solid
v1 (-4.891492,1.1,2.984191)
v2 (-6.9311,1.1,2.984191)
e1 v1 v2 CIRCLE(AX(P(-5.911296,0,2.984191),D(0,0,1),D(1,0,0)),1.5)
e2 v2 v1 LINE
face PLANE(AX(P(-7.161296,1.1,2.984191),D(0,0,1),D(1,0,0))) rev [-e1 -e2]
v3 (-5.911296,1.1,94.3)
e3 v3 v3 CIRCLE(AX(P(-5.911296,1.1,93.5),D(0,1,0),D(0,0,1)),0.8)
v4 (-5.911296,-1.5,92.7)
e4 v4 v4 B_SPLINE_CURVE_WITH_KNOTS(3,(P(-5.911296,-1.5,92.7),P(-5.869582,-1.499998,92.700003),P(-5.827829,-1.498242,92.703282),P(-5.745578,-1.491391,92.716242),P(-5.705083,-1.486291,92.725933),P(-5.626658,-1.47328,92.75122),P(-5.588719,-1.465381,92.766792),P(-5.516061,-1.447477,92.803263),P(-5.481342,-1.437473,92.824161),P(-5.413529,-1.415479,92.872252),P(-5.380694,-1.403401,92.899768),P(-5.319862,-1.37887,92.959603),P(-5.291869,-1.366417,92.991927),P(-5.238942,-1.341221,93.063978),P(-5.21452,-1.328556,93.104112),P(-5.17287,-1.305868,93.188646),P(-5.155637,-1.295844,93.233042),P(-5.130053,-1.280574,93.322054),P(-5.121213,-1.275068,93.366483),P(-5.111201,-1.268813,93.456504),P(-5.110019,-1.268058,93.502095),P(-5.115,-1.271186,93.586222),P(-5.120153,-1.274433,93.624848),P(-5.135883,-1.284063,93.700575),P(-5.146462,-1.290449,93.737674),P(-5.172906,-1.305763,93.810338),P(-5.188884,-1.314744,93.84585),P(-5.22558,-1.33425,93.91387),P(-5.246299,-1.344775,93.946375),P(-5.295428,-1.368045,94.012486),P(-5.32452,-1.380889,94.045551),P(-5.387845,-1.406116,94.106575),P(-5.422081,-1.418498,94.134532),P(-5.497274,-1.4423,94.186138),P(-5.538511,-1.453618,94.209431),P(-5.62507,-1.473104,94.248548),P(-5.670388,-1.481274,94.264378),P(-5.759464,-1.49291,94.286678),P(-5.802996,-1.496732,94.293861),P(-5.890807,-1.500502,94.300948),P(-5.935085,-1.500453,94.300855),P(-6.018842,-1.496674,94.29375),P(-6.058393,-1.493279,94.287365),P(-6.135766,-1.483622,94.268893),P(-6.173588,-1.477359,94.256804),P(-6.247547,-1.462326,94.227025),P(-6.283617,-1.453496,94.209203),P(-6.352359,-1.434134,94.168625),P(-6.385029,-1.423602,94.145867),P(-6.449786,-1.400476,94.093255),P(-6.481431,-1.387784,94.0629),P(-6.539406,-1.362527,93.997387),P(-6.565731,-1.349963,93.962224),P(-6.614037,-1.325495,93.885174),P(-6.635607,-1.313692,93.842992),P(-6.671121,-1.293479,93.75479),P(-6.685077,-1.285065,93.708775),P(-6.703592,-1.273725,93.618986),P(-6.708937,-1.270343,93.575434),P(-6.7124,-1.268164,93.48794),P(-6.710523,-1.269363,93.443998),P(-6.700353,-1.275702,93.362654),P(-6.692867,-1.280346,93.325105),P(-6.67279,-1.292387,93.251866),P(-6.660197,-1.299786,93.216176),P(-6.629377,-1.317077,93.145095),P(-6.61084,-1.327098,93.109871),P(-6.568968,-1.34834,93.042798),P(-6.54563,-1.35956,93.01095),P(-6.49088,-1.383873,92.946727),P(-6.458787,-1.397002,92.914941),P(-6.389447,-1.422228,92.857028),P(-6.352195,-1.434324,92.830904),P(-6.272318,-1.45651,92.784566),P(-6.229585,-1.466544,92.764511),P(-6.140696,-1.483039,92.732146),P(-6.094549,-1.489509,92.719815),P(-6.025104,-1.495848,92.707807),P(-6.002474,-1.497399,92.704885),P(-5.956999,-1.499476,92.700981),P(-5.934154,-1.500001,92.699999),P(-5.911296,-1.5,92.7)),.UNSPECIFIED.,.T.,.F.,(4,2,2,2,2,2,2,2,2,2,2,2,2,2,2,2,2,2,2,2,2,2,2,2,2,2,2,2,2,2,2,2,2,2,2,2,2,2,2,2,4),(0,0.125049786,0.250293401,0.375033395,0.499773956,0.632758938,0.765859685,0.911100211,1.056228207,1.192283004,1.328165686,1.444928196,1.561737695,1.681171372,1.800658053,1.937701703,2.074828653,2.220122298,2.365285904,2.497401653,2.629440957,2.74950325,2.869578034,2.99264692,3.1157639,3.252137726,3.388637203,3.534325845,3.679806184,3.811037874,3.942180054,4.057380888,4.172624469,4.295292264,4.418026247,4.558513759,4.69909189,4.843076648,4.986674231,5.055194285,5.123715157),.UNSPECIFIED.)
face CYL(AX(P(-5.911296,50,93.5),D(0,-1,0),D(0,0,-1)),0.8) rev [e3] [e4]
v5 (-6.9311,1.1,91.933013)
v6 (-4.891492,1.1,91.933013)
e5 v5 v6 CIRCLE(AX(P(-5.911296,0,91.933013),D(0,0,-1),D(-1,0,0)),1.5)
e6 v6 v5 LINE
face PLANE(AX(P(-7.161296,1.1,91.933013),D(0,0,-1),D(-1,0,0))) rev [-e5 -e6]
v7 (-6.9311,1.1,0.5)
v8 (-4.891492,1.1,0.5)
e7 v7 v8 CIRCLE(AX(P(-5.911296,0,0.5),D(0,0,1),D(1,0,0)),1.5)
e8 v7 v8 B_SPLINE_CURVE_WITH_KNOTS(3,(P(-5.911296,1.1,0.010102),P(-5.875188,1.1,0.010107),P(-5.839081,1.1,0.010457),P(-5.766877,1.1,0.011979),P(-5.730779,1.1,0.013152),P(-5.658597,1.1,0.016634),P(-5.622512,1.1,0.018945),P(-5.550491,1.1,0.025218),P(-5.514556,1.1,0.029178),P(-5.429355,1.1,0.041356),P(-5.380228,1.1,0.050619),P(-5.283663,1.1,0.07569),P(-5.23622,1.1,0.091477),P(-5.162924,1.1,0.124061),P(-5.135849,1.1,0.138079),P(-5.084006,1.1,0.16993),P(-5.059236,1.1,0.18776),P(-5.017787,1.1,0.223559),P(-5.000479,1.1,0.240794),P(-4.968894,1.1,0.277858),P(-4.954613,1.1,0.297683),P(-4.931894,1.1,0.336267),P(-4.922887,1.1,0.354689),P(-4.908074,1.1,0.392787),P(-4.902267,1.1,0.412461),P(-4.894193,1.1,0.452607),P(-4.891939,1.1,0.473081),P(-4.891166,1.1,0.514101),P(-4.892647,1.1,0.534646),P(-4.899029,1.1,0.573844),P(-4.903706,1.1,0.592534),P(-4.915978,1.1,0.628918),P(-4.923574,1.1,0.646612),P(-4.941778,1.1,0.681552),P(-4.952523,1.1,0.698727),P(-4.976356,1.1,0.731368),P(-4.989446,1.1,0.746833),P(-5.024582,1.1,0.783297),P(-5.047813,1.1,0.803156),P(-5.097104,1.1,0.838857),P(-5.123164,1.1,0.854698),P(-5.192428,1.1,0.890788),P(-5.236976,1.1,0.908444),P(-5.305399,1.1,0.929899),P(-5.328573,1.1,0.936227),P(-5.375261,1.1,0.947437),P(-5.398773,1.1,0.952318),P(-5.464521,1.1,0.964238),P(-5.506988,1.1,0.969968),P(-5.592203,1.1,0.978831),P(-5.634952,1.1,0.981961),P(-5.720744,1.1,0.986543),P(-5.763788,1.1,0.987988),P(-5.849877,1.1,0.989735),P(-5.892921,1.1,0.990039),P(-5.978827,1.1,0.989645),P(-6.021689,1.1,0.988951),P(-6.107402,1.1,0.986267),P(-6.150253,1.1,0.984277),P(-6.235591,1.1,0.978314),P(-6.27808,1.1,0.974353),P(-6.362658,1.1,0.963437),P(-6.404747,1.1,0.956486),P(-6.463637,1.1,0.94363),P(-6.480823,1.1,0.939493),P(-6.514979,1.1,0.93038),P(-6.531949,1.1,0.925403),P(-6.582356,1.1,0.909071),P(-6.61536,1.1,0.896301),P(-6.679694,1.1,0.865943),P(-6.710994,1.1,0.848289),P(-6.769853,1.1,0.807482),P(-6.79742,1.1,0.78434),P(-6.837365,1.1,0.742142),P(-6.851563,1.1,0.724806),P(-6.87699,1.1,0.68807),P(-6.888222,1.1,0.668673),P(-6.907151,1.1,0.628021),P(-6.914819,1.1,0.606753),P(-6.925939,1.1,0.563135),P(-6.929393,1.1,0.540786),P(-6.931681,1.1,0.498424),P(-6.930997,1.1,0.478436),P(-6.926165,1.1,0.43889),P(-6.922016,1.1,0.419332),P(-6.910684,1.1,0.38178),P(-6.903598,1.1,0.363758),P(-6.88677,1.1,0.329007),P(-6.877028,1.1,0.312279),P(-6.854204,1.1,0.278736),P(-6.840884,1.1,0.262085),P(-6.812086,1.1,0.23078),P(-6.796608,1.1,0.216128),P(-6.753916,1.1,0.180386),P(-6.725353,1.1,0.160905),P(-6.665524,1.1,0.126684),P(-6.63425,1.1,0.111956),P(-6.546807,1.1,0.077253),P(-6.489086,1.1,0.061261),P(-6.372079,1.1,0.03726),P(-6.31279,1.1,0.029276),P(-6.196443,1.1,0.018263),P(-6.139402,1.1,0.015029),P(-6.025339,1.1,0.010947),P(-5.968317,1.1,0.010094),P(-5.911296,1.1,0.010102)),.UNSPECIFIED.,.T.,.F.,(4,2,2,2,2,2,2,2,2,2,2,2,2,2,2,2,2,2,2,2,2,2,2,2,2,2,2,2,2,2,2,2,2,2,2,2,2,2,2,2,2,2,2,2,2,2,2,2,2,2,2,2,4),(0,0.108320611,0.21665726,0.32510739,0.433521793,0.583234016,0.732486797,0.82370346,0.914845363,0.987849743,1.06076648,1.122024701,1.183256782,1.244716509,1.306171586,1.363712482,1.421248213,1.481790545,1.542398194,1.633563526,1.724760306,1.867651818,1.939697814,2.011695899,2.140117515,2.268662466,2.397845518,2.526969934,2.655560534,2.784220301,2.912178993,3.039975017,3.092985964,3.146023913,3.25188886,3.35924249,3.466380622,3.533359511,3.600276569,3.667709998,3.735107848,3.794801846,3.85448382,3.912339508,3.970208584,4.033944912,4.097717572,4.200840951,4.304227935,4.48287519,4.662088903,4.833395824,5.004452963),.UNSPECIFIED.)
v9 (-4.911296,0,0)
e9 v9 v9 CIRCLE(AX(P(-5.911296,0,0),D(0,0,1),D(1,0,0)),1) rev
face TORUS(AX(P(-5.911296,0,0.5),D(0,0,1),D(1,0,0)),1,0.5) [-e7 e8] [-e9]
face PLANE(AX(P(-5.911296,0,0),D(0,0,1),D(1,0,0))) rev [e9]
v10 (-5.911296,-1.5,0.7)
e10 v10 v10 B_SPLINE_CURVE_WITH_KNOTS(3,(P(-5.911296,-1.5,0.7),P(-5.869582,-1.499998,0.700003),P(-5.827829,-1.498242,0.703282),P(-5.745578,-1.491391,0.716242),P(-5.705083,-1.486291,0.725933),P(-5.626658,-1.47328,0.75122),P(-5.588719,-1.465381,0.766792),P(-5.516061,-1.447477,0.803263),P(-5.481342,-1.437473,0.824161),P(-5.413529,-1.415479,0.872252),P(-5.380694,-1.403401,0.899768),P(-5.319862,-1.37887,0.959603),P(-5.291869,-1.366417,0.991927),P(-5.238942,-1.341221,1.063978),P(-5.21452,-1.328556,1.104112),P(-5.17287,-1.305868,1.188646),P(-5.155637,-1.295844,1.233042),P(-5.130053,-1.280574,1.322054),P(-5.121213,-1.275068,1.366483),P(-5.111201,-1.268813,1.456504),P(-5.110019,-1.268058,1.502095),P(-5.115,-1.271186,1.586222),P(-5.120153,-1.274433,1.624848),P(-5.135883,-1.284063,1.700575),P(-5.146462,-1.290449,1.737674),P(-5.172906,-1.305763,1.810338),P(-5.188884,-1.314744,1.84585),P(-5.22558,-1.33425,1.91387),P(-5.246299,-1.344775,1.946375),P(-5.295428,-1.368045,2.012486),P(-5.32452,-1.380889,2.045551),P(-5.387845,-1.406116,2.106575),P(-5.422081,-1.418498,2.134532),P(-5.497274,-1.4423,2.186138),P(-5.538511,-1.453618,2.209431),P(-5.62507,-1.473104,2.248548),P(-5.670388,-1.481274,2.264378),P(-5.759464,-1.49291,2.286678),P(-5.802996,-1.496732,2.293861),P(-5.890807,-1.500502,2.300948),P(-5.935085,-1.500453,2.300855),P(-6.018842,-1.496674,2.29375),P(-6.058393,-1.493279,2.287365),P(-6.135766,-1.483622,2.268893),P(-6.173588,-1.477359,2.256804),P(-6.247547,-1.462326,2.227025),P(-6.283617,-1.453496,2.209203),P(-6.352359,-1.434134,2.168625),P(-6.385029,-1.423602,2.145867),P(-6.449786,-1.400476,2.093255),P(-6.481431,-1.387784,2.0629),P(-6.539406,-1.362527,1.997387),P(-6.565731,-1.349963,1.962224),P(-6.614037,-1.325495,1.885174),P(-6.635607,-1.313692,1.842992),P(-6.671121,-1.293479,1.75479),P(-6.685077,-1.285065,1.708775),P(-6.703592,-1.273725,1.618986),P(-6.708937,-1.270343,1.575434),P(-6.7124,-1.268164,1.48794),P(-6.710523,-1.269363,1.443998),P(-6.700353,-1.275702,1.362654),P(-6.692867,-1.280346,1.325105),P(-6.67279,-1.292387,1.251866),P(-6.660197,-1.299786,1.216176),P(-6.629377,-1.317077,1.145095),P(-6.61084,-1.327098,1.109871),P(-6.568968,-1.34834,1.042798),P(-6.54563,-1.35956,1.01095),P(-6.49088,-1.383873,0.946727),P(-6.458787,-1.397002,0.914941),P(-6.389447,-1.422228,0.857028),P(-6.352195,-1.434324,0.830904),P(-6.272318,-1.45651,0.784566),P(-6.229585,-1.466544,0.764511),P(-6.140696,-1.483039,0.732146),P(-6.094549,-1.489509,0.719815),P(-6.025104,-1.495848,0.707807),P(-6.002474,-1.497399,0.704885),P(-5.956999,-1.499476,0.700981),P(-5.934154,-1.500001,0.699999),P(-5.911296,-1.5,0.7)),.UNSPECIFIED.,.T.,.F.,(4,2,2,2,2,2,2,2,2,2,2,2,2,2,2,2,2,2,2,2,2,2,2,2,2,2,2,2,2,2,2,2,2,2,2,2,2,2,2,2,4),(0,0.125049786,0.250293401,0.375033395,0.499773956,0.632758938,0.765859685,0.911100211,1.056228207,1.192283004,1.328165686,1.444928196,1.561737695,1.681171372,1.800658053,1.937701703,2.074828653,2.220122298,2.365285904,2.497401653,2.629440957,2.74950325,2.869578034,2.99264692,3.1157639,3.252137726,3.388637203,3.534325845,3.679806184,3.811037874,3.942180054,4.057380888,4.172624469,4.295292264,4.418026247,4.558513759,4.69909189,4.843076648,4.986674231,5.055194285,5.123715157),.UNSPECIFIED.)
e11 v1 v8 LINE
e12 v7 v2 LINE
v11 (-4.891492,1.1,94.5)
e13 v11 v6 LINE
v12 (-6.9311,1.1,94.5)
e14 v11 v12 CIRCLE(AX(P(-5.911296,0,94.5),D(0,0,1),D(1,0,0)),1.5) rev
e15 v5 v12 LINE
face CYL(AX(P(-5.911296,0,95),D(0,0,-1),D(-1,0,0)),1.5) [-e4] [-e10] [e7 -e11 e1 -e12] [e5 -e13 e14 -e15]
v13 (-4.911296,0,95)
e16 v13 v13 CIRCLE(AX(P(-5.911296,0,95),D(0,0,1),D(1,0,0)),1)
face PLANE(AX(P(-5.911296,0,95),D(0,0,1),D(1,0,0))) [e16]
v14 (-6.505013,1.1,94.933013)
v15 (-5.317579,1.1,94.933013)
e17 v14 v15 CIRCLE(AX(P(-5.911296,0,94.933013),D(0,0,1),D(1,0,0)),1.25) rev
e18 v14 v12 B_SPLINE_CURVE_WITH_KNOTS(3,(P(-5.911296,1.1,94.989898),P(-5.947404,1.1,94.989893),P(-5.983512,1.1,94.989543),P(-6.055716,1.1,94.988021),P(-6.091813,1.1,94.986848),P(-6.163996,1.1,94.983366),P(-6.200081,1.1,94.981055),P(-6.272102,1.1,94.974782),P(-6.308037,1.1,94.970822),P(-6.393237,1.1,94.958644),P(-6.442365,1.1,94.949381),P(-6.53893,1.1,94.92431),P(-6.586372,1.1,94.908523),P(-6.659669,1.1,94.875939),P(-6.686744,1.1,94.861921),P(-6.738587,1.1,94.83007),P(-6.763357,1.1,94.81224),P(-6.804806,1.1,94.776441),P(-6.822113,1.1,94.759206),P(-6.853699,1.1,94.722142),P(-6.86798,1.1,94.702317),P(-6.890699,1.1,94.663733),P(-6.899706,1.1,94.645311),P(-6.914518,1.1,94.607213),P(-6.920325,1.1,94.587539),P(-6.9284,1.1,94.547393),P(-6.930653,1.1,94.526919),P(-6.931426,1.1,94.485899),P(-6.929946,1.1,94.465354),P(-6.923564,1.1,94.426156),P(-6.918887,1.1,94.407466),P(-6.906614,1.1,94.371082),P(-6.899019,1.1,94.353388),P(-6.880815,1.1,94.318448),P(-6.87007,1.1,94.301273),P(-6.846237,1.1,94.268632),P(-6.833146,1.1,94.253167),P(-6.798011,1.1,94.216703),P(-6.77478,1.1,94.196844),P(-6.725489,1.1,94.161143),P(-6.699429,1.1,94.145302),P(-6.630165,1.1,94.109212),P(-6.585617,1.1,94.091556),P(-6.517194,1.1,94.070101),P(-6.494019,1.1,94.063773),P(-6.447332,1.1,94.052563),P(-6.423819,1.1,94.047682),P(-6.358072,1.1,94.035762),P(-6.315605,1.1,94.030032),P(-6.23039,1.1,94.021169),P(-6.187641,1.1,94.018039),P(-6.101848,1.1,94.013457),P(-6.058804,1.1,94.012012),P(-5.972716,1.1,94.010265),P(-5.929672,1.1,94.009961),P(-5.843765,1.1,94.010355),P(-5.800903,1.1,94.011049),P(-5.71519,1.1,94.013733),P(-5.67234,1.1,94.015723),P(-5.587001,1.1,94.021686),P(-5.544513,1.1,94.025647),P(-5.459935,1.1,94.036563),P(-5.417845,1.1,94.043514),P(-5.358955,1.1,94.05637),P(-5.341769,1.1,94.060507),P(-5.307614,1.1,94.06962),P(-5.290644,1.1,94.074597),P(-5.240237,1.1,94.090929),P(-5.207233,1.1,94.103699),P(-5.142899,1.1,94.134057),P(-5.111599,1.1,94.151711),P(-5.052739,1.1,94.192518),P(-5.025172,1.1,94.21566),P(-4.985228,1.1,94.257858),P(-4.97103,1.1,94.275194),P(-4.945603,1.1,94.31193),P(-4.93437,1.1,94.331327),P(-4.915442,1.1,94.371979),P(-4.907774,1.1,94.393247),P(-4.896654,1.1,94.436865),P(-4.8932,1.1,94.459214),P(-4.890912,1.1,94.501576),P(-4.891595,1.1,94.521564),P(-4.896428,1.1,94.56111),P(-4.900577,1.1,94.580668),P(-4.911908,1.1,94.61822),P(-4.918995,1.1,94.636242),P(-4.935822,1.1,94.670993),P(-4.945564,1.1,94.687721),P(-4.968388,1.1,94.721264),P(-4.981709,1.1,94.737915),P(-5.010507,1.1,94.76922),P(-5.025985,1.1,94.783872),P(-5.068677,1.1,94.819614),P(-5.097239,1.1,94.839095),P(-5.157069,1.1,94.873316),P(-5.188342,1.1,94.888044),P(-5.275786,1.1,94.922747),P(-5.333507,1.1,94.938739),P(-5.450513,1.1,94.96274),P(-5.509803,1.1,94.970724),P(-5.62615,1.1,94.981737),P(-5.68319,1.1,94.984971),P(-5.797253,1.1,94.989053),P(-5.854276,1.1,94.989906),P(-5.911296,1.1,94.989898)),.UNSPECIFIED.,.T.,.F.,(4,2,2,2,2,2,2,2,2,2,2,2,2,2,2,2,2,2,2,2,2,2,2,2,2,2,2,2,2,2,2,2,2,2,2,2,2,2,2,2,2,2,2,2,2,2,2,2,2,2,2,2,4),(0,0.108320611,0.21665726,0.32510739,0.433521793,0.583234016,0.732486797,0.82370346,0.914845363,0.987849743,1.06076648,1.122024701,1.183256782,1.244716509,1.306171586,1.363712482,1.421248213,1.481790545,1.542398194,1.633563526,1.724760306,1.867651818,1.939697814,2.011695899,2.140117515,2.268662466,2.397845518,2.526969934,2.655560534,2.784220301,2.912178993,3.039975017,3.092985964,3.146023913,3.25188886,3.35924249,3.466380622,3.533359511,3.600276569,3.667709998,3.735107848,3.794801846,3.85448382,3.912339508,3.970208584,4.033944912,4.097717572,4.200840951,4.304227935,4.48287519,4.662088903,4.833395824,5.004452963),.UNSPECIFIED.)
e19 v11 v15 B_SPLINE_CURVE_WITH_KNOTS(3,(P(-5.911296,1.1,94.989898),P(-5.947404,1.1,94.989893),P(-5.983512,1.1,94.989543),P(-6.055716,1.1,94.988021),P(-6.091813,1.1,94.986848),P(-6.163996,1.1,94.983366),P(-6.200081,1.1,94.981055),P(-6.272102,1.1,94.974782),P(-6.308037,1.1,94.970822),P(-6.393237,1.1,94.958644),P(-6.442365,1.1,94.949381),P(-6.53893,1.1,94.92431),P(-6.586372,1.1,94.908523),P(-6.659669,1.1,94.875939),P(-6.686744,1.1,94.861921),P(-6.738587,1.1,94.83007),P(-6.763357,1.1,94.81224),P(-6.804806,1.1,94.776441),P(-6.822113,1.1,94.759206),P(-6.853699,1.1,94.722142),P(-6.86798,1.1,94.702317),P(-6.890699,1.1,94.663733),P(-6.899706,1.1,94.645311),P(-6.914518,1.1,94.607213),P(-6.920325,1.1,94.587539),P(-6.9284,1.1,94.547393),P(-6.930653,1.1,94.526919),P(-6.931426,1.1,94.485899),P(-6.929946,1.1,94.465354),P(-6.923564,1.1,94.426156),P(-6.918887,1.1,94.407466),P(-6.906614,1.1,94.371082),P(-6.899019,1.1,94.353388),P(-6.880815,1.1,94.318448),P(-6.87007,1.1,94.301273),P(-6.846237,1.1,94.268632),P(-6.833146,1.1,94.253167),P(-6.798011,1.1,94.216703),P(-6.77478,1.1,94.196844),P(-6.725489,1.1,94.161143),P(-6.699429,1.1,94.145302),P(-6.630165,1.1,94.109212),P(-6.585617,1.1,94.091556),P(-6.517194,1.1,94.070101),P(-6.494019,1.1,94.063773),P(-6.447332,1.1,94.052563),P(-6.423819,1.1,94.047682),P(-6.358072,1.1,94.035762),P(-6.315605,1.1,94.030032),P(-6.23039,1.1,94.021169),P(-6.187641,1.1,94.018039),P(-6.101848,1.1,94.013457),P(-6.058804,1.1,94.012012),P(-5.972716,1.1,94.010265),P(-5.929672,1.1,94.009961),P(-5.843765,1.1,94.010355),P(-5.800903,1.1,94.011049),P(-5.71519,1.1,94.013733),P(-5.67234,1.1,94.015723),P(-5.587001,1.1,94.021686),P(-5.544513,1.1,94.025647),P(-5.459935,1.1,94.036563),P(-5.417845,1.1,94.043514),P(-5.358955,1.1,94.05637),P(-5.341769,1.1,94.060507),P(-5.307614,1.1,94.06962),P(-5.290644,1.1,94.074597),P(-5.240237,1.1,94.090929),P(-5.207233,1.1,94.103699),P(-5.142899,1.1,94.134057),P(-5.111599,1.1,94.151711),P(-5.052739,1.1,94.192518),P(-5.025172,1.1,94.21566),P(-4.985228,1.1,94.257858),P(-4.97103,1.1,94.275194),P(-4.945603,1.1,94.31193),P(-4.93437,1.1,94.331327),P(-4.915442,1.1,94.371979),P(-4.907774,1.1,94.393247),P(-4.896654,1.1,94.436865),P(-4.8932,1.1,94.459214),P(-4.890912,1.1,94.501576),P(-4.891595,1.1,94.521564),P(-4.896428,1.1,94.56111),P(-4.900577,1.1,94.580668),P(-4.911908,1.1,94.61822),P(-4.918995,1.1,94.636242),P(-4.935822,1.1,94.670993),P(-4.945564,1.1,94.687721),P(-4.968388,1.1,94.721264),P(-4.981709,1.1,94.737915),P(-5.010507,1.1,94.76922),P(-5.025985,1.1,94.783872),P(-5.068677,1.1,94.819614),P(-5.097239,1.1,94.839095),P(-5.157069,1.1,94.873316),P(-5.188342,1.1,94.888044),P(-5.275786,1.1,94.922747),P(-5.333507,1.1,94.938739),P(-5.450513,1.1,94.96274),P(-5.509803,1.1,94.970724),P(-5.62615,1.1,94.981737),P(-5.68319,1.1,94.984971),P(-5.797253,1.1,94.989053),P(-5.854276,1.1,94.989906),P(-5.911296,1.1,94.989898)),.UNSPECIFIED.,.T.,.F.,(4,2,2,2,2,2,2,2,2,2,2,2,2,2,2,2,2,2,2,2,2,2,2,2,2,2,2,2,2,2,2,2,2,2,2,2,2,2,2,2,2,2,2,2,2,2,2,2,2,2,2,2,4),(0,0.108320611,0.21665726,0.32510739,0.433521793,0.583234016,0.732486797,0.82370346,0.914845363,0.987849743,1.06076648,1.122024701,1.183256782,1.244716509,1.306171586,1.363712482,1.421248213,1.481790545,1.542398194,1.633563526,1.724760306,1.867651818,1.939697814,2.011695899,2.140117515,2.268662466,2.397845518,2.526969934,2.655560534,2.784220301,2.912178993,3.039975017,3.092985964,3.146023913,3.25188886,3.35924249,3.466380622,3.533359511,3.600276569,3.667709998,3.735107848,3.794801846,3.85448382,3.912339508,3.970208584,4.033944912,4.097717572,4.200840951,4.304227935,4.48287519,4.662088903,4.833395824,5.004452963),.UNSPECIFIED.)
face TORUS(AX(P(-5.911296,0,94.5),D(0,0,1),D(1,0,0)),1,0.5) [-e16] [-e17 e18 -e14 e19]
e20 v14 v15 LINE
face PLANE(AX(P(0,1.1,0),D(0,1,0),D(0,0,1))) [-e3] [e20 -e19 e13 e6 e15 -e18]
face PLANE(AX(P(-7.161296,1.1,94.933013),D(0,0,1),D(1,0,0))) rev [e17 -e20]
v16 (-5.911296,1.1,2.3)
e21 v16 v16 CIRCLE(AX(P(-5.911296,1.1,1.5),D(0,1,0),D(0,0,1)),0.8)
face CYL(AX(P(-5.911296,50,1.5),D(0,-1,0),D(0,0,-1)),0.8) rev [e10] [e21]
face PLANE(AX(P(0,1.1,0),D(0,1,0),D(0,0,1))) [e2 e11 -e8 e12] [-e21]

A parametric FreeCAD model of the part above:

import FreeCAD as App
import Part
import Sketcher
from FreeCAD import Vector
Q = App.Units.Quantity


def edges_at(feature, points):
    """Names of the edges that pass closest to the given points."""
    edges = feature.Shape.Edges
    near = lambda p: min(range(len(edges)), key=lambda i: edges[i].distToShape(Part.Vertex(*p))[0])
    return sorted({f"Edge{near(p) + 1}" for p in points})

doc = App.newDocument("Part")
body = doc.addObject("PartDesign::Body", "Body")

sketch1 = body.newObject("Sketcher::SketchObject", "Sketch")
sketch1.AttachmentSupport = (doc.getObject("XY_Plane"), [""])
sketch1.MapMode = "FlatFace"
sketch1.addGeometry(Part.Circle(Vector(-5.9, 0, 0), Vector(0, 0, 1), 1.5), False)
sketch1.addConstraint([
    Sketcher.Constraint("PointOnObject", 0, 3, -1),
    Sketcher.Constraint("Diameter", 0, Q("3 mm")),
    Sketcher.Constraint("DistanceX", 0, 3, -1, 1, Q("5.911296 mm")),
])
pad1 = body.newObject("PartDesign::Pad", "Pad")
pad1.Profile = sketch1
pad1.Length = 95

sketch2 = body.newObject("Sketcher::SketchObject", "Sketch001")
sketch2.AttachmentSupport = (doc.getObject("XZ_Plane"), [""])
sketch2.MapMode = "FlatFace"
sketch2.addGeometry([
    Part.Circle(Vector(-5.9, 1.5, 0), Vector(0, 0, 1), 0.8),
    Part.Circle(Vector(-5.9, 93.5, 0), Vector(0, 0, 1), 0.8),
], False)
sketch2.addConstraint([
    Sketcher.Constraint("Equal", 0, 1),
    Sketcher.Constraint("Vertical", 0, 3, 1, 3),
    Sketcher.Constraint("Diameter", 0, Q("1.6 mm")),
    Sketcher.Constraint("DistanceY", 0, 3, 1, 3, Q("92 mm")),
    Sketcher.Constraint("DistanceY", -1, 1, 0, 3, Q("1.5 mm")),
    Sketcher.Constraint("DistanceX", 0, 3, -1, 1, Q("5.911296 mm")),
])
pocket1 = body.newObject("PartDesign::Pocket", "Pocket")
pocket1.Profile = sketch2
pocket1.Type = "ThroughAll"
pocket1.Midplane = True
doc.recompute()

fillet = body.newObject("PartDesign::Fillet", "Fillet")
fillet.Base = (pocket1, edges_at(pocket1, [(-7.411, 0, 0), (-7.411, 0, 95)]))
fillet.Radius = 0.5

sketch3 = body.newObject("Sketcher::SketchObject", "Sketch002")
sketch3.AttachmentSupport = (doc.getObject("XZ_Plane"), [""])
sketch3.MapMode = "FlatFace"
sketch3.AttachmentOffset = App.Placement(Vector(0, 0, -1.5), App.Rotation())
sketch3.addGeometry([
    Part.LineSegment(Vector(-7.2, 91.9, 0), Vector(-7.2, 94.9, 0)),
    Part.LineSegment(Vector(-7.2, 94.9, 0), Vector(-4.7, 94.9, 0)),
    Part.LineSegment(Vector(-4.7, 94.9, 0), Vector(-4.7, 91.9, 0)),
    Part.LineSegment(Vector(-4.7, 91.9, 0), Vector(-7.2, 91.9, 0)),
    Part.LineSegment(Vector(-7.2, 0, 0), Vector(-7.2, 3, 0)),
    Part.LineSegment(Vector(-7.2, 3, 0), Vector(-4.7, 3, 0)),
    Part.LineSegment(Vector(-4.7, 3, 0), Vector(-4.7, 0, 0)),
    Part.LineSegment(Vector(-4.7, 0, 0), Vector(-7.2, 0, 0)),
], False)
sketch3.addConstraint([
    Sketcher.Constraint("Coincident", 0, 2, 1, 1),
    Sketcher.Constraint("Coincident", 1, 2, 2, 1),
    Sketcher.Constraint("Coincident", 2, 2, 3, 1),
    Sketcher.Constraint("Coincident", 3, 2, 0, 1),
    Sketcher.Constraint("Coincident", 4, 2, 5, 1),
    Sketcher.Constraint("Coincident", 5, 2, 6, 1),
    Sketcher.Constraint("Coincident", 6, 2, 7, 1),
    Sketcher.Constraint("Coincident", 7, 2, 4, 1),
    Sketcher.Constraint("Vertical", 0),
    Sketcher.Constraint("Horizontal", 1),
    Sketcher.Constraint("Vertical", 2),
    Sketcher.Constraint("Horizontal", 3),
    Sketcher.Constraint("Vertical", 4),
    Sketcher.Constraint("Horizontal", 5),
    Sketcher.Constraint("Vertical", 6),
    Sketcher.Constraint("Horizontal", 7),
    Sketcher.Constraint("Vertical", 3, 2, 4, 2),
    Sketcher.Constraint("Vertical", 2, 2, 5, 2),
    Sketcher.Constraint("Equal", 2, 4),
    Sketcher.Constraint("DistanceY", 0, 1, 0, 2, Q("3 mm")),
    Sketcher.Constraint("DistanceX", 1, 1, 1, 2, Q("2.5 mm")),
    Sketcher.Constraint("DistanceY", -1, 1, 4, 2, Q("2.984191 mm")),
    Sketcher.Constraint("DistanceY", 4, 2, 3, 2, Q("88.948821 mm")),
    Sketcher.Constraint("DistanceX", 0, 2, -1, 1, Q("7.161296 mm")),
])
pocket2 = body.newObject("PartDesign::Pocket", "Pocket001")
pocket2.Profile = sketch3
pocket2.Length = 0.4
pocket2.Reversed = True

doc.recompute()
